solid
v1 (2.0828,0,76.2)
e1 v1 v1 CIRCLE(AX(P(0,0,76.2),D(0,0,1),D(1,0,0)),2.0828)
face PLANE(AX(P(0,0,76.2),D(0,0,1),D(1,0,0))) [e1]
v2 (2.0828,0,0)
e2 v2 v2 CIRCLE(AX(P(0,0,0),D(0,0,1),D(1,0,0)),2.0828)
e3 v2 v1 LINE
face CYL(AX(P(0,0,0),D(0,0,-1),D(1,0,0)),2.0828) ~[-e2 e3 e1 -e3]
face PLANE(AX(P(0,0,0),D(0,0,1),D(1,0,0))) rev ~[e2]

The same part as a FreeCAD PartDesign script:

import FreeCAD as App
import Part
import Sketcher
from FreeCAD import Vector
Q = App.Units.Quantity

doc = App.newDocument("Part")
body = doc.addObject("PartDesign::Body", "Body")

# Sketch on XY plane
sketch1 = body.newObject("Sketcher::SketchObject", "Sketch")
sketch1.AttachmentSupport = (doc.getObject("XY_Plane"), [""])
sketch1.MapMode = "FlatFace"
sketch1.addGeometry(Part.Circle(Vector(0, 0, 0), Vector(0, 0, 1), 2.0828), False)
sketch1.addConstraint(Sketcher.Constraint("Coincident", 0, 3, -1, 1))
sketch1.addConstraint(Sketcher.Constraint("Diameter", 0, Q("0.164 in")))
pad1 = body.newObject("PartDesign::Pad", "Pad")
pad1.Profile = sketch1
pad1.Length = Q("3 in")

doc.recompute()
